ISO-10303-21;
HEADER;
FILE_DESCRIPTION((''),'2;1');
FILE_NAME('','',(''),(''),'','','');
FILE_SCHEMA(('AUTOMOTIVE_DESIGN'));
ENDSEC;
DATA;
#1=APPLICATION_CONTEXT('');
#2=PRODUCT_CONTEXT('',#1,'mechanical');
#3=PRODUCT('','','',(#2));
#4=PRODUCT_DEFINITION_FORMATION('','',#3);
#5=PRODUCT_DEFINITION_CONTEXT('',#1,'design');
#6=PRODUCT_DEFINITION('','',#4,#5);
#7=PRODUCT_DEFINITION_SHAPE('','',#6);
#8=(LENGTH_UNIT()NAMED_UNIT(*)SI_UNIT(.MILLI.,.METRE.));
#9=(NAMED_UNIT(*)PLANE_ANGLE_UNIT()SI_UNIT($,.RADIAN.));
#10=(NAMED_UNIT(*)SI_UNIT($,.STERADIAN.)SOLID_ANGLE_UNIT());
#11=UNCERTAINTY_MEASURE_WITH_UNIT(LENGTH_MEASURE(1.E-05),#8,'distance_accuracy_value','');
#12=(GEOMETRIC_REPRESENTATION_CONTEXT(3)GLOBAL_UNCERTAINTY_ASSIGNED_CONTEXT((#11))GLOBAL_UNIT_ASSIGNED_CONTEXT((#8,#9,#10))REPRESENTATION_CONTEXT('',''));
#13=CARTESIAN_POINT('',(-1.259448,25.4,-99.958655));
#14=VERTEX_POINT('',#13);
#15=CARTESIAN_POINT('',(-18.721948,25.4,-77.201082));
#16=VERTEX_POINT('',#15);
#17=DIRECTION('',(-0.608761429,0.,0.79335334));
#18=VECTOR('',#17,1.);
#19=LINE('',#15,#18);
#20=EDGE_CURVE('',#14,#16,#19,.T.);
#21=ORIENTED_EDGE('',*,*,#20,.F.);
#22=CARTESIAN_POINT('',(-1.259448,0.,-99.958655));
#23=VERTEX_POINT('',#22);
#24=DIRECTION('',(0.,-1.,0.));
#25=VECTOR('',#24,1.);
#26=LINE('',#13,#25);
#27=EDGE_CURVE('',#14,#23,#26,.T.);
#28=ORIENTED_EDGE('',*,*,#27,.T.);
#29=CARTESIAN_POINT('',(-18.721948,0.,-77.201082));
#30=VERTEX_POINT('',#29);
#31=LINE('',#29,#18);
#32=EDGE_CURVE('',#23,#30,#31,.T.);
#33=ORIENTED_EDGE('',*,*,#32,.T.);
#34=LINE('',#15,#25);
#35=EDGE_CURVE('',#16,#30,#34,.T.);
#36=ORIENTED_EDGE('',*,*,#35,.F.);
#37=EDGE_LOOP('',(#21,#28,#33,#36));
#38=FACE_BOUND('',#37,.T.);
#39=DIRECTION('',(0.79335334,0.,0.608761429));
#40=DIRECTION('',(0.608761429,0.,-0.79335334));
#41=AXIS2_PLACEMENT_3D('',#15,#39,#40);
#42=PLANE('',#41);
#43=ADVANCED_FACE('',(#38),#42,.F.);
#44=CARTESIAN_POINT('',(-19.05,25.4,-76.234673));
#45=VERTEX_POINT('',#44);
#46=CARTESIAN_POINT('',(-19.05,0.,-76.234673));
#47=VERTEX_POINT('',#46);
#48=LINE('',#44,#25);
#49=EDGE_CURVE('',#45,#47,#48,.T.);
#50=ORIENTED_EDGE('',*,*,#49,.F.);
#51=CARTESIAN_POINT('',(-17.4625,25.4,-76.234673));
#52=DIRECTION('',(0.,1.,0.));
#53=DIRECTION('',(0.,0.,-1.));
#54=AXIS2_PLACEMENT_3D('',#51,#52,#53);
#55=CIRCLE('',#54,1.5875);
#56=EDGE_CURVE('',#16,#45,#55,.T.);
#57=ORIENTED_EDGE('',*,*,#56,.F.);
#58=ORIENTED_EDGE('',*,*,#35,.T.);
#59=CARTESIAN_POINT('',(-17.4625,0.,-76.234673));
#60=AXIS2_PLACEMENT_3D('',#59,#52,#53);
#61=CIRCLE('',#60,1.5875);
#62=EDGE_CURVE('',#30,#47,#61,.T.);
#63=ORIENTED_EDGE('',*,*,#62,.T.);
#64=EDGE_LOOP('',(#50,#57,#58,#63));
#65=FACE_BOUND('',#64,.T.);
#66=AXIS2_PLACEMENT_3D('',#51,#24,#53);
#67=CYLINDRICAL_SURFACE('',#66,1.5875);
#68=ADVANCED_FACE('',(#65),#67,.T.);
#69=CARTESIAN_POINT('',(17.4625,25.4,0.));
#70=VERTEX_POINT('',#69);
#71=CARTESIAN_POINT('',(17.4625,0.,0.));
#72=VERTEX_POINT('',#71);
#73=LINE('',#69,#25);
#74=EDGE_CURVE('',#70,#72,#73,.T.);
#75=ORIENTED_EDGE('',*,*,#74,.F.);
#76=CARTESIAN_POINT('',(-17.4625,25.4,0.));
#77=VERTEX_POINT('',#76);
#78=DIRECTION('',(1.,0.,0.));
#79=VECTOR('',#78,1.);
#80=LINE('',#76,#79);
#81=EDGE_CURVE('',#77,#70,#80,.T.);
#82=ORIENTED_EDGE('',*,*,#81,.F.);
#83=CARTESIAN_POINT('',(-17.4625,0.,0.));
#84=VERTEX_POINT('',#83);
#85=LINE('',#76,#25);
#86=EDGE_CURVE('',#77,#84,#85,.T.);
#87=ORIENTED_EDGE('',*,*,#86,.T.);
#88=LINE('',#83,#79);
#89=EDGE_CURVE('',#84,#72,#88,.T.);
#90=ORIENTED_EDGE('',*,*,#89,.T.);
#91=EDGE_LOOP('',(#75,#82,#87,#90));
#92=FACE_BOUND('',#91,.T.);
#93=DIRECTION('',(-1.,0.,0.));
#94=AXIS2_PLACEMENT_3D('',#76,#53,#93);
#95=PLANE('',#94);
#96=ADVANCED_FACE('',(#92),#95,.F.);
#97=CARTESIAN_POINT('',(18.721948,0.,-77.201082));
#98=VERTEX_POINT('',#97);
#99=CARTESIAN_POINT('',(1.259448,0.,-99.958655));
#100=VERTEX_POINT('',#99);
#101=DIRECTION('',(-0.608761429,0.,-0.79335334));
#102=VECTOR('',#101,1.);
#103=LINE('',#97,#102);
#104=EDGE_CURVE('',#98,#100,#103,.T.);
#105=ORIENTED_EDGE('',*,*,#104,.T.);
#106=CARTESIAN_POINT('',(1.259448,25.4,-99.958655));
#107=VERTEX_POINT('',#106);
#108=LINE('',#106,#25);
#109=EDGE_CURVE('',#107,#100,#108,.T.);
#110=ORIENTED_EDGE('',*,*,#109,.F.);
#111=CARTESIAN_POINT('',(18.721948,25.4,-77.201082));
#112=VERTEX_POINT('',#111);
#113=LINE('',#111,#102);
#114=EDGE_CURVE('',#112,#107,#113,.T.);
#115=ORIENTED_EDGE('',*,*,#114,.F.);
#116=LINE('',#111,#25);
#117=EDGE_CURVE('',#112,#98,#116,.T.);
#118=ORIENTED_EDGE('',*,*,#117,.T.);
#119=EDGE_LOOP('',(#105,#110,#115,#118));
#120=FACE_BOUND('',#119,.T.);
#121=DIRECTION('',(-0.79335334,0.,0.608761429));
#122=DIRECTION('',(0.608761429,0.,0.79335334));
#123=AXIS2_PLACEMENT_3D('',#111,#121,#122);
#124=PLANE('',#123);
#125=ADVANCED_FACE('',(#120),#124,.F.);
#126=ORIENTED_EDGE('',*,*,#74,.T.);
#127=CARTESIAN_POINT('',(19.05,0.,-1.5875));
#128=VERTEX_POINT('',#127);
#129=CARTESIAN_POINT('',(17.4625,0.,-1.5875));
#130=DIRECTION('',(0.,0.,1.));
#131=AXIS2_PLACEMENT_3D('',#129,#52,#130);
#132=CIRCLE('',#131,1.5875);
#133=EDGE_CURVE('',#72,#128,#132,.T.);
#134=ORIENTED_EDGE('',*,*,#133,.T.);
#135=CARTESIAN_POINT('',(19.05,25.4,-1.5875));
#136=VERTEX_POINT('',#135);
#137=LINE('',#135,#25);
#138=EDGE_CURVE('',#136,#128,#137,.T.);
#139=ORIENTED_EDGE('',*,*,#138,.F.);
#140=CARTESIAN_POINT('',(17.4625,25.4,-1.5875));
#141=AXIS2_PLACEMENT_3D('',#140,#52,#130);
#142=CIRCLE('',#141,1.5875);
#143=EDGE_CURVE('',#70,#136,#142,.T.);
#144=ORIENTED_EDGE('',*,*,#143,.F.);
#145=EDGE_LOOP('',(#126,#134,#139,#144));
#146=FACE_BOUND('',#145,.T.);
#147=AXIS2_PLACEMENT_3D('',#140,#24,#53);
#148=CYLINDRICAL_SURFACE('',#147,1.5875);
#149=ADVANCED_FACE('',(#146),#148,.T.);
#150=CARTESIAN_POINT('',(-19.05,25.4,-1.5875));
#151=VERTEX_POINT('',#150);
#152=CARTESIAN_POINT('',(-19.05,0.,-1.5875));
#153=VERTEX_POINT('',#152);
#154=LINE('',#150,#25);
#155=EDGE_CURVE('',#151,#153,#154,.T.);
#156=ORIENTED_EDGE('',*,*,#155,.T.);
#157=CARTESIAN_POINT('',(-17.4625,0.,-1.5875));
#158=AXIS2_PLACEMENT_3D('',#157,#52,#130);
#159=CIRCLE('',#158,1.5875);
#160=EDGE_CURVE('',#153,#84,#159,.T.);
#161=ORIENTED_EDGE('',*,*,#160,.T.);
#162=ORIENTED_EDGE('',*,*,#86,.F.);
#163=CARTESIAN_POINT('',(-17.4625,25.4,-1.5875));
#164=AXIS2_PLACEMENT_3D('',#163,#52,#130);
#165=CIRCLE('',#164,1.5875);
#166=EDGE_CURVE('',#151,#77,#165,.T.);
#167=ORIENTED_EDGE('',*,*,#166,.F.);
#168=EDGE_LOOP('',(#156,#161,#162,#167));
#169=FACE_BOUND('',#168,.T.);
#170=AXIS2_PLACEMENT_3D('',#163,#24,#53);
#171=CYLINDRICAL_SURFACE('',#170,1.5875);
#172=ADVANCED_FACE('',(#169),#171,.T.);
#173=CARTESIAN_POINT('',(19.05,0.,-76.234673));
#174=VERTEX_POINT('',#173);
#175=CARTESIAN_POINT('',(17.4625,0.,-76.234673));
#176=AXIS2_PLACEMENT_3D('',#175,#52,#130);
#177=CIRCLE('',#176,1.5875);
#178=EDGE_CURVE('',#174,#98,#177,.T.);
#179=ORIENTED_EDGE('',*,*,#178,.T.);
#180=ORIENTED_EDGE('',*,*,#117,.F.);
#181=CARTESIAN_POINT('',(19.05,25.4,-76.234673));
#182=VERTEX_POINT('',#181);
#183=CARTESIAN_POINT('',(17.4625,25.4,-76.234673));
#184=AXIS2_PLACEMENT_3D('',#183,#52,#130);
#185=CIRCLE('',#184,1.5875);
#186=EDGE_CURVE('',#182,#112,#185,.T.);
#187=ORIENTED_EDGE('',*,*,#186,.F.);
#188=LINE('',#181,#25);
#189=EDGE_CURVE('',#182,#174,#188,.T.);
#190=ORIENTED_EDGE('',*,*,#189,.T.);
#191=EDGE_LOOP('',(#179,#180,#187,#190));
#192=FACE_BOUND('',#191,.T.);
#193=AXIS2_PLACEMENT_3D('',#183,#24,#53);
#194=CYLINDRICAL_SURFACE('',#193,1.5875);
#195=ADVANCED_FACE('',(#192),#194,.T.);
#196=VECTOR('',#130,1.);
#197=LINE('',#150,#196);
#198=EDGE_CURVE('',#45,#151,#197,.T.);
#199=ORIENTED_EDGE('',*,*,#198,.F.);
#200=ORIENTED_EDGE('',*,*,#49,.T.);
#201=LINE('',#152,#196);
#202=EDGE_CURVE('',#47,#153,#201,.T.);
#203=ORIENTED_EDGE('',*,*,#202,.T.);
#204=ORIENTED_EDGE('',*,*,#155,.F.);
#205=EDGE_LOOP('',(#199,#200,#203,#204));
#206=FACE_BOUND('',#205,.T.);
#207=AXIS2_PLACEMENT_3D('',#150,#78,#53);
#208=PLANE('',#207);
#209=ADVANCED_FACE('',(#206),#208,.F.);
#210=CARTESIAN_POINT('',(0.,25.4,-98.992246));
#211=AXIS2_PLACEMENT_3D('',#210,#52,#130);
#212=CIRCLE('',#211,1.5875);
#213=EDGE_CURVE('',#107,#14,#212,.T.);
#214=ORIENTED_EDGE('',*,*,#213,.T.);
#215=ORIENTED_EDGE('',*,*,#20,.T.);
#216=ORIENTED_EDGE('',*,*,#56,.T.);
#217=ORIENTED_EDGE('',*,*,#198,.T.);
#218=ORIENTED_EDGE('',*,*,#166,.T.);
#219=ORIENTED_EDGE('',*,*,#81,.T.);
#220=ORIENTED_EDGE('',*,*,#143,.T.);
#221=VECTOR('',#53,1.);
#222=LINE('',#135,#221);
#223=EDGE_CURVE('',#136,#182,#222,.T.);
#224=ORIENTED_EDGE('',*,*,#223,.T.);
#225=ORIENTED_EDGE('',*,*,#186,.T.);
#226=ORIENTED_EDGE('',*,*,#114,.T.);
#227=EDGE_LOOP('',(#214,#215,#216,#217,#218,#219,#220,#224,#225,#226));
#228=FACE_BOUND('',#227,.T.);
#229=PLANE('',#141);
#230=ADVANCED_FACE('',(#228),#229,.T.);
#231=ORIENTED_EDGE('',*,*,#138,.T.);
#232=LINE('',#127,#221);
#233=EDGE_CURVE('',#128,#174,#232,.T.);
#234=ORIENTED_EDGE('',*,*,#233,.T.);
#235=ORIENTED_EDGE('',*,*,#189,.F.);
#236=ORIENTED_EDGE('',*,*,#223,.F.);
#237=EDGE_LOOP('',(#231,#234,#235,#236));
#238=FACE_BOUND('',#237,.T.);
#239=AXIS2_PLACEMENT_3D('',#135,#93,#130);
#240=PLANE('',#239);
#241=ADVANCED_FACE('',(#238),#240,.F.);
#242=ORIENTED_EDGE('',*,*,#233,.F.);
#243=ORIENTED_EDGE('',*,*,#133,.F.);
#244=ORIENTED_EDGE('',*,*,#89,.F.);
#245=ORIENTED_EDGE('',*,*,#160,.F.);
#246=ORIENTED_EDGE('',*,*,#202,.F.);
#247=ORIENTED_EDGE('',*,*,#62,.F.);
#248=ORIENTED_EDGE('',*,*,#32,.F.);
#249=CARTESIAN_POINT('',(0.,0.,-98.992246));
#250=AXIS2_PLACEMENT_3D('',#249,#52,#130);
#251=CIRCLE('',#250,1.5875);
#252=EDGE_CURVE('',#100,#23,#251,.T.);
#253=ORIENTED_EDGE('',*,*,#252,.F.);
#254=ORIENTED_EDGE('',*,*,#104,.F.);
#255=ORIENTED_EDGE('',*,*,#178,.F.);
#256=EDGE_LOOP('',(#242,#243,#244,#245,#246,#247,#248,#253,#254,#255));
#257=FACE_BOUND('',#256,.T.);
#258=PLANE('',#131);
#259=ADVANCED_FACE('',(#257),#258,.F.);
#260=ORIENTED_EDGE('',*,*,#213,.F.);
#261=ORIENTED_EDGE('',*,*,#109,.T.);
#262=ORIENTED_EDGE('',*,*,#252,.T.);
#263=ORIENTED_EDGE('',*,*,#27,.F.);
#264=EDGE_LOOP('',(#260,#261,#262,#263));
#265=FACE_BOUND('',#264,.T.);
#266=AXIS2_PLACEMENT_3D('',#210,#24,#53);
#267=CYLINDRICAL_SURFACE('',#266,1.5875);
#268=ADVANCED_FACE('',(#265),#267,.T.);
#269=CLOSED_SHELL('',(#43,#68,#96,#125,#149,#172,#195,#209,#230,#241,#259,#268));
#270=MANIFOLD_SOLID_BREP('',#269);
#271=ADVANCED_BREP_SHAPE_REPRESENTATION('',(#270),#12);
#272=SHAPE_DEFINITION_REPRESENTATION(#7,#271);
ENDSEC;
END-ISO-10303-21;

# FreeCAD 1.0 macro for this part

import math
import FreeCAD as App
import Part
import Sketcher

V = App.Vector
Q = App.Units.Quantity

doc = App.newDocument("Part")
body = doc.addObject("PartDesign::Body", "Body")

# Sketch on XZ plane
sketch1 = body.newObject("Sketcher::SketchObject", "Sketch")
sketch1.AttachmentSupport = (doc.getObject("XZ_Plane"), [""])
sketch1.MapMode = "FlatFace"
sketch1.addGeometry(Part.LineSegment(V(-17.5, 0, 0), V(17.5, 0, 0)), False)
sketch1.addGeometry(Part.ArcOfCircle(Part.Circle(V(17.5, -1.6, 0), V(0, 0, 1), 1.6), math.radians(0), math.radians(90)), False)
sketch1.addGeometry(Part.LineSegment(V(19.1, -1.6, 0), V(19.1, -76.2, 0)), False)
sketch1.addGeometry(Part.ArcOfCircle(Part.Circle(V(17.5, -76.2, 0), V(0, 0, 1), 1.6), math.radians(-38), math.radians(0)), False)
sketch1.addGeometry(Part.LineSegment(V(18.7, -77.2, 0), V(1.3, -100, 0)), False)
sketch1.addGeometry(Part.ArcOfCircle(Part.Circle(V(0, -99, 0), V(0, 0, 1), 1.6), math.radians(-143), math.radians(-37)), False)
sketch1.addGeometry(Part.LineSegment(V(-1.3, -100, 0), V(-18.7, -77.2, 0)), False)
sketch1.addGeometry(Part.ArcOfCircle(Part.Circle(V(-17.5, -76.2, 0), V(0, 0, 1), 1.6), math.radians(180), math.radians(218)), False)
sketch1.addGeometry(Part.LineSegment(V(-19.1, -76.2, 0), V(-19.1, -1.6, 0)), False)
sketch1.addGeometry(Part.ArcOfCircle(Part.Circle(V(-17.5, -1.6, 0), V(0, 0, 1), 1.6), math.radians(90), math.radians(180)), False)
sketch1.addConstraint(Sketcher.Constraint("Tangent", 0, 2, 1, 2))
sketch1.addConstraint(Sketcher.Constraint("Tangent", 1, 1, 2, 1))
sketch1.addConstraint(Sketcher.Constraint("Tangent", 2, 2, 3, 2))
sketch1.addConstraint(Sketcher.Constraint("Tangent", 3, 1, 4, 1))
sketch1.addConstraint(Sketcher.Constraint("Tangent", 4, 2, 5, 2))
sketch1.addConstraint(Sketcher.Constraint("Tangent", 5, 1, 6, 1))
sketch1.addConstraint(Sketcher.Constraint("Tangent", 6, 2, 7, 2))
sketch1.addConstraint(Sketcher.Constraint("Tangent", 7, 1, 8, 1))
sketch1.addConstraint(Sketcher.Constraint("Tangent", 8, 2, 9, 2))
sketch1.addConstraint(Sketcher.Constraint("Tangent", 9, 1, 0, 1))
sketch1.addConstraint(Sketcher.Constraint("Horizontal", 0))
sketch1.addConstraint(Sketcher.Constraint("Vertical", 2))
sketch1.addConstraint(Sketcher.Constraint("Vertical", 8))
sketch1.addConstraint(Sketcher.Constraint("Equal", 1, 3))
sketch1.addConstraint(Sketcher.Constraint("Equal", 3, 5))
sketch1.addConstraint(Sketcher.Constraint("Equal", 5, 7))
sketch1.addConstraint(Sketcher.Constraint("Equal", 7, 9))
sketch1.addConstraint(Sketcher.Constraint("Symmetric", 0, 2, 9, 1, -1, 1))
sketch1.addConstraint(Sketcher.Constraint("Symmetric", 4, 2, 5, 1, -2))
sketch1.addConstraint(Sketcher.Constraint("Radius", 1, Q("0.0625 in")))
sketch1.addConstraint(Sketcher.Constraint("Angle", 4, Q("-127.5 deg")))
sketch1.addConstraint(Sketcher.Constraint("DistanceX", 8, 2, 1, 1, Q("1.5 in")))
sketch1.addConstraint(Sketcher.Constraint("DistanceY", 2, 2, 2, 1, 74.647173))
pad1 = body.newObject("PartDesign::Pad", "Pad")
pad1.Profile = sketch1
pad1.Length = Q("1 in")
pad1.Reversed = True

doc.recompute()
